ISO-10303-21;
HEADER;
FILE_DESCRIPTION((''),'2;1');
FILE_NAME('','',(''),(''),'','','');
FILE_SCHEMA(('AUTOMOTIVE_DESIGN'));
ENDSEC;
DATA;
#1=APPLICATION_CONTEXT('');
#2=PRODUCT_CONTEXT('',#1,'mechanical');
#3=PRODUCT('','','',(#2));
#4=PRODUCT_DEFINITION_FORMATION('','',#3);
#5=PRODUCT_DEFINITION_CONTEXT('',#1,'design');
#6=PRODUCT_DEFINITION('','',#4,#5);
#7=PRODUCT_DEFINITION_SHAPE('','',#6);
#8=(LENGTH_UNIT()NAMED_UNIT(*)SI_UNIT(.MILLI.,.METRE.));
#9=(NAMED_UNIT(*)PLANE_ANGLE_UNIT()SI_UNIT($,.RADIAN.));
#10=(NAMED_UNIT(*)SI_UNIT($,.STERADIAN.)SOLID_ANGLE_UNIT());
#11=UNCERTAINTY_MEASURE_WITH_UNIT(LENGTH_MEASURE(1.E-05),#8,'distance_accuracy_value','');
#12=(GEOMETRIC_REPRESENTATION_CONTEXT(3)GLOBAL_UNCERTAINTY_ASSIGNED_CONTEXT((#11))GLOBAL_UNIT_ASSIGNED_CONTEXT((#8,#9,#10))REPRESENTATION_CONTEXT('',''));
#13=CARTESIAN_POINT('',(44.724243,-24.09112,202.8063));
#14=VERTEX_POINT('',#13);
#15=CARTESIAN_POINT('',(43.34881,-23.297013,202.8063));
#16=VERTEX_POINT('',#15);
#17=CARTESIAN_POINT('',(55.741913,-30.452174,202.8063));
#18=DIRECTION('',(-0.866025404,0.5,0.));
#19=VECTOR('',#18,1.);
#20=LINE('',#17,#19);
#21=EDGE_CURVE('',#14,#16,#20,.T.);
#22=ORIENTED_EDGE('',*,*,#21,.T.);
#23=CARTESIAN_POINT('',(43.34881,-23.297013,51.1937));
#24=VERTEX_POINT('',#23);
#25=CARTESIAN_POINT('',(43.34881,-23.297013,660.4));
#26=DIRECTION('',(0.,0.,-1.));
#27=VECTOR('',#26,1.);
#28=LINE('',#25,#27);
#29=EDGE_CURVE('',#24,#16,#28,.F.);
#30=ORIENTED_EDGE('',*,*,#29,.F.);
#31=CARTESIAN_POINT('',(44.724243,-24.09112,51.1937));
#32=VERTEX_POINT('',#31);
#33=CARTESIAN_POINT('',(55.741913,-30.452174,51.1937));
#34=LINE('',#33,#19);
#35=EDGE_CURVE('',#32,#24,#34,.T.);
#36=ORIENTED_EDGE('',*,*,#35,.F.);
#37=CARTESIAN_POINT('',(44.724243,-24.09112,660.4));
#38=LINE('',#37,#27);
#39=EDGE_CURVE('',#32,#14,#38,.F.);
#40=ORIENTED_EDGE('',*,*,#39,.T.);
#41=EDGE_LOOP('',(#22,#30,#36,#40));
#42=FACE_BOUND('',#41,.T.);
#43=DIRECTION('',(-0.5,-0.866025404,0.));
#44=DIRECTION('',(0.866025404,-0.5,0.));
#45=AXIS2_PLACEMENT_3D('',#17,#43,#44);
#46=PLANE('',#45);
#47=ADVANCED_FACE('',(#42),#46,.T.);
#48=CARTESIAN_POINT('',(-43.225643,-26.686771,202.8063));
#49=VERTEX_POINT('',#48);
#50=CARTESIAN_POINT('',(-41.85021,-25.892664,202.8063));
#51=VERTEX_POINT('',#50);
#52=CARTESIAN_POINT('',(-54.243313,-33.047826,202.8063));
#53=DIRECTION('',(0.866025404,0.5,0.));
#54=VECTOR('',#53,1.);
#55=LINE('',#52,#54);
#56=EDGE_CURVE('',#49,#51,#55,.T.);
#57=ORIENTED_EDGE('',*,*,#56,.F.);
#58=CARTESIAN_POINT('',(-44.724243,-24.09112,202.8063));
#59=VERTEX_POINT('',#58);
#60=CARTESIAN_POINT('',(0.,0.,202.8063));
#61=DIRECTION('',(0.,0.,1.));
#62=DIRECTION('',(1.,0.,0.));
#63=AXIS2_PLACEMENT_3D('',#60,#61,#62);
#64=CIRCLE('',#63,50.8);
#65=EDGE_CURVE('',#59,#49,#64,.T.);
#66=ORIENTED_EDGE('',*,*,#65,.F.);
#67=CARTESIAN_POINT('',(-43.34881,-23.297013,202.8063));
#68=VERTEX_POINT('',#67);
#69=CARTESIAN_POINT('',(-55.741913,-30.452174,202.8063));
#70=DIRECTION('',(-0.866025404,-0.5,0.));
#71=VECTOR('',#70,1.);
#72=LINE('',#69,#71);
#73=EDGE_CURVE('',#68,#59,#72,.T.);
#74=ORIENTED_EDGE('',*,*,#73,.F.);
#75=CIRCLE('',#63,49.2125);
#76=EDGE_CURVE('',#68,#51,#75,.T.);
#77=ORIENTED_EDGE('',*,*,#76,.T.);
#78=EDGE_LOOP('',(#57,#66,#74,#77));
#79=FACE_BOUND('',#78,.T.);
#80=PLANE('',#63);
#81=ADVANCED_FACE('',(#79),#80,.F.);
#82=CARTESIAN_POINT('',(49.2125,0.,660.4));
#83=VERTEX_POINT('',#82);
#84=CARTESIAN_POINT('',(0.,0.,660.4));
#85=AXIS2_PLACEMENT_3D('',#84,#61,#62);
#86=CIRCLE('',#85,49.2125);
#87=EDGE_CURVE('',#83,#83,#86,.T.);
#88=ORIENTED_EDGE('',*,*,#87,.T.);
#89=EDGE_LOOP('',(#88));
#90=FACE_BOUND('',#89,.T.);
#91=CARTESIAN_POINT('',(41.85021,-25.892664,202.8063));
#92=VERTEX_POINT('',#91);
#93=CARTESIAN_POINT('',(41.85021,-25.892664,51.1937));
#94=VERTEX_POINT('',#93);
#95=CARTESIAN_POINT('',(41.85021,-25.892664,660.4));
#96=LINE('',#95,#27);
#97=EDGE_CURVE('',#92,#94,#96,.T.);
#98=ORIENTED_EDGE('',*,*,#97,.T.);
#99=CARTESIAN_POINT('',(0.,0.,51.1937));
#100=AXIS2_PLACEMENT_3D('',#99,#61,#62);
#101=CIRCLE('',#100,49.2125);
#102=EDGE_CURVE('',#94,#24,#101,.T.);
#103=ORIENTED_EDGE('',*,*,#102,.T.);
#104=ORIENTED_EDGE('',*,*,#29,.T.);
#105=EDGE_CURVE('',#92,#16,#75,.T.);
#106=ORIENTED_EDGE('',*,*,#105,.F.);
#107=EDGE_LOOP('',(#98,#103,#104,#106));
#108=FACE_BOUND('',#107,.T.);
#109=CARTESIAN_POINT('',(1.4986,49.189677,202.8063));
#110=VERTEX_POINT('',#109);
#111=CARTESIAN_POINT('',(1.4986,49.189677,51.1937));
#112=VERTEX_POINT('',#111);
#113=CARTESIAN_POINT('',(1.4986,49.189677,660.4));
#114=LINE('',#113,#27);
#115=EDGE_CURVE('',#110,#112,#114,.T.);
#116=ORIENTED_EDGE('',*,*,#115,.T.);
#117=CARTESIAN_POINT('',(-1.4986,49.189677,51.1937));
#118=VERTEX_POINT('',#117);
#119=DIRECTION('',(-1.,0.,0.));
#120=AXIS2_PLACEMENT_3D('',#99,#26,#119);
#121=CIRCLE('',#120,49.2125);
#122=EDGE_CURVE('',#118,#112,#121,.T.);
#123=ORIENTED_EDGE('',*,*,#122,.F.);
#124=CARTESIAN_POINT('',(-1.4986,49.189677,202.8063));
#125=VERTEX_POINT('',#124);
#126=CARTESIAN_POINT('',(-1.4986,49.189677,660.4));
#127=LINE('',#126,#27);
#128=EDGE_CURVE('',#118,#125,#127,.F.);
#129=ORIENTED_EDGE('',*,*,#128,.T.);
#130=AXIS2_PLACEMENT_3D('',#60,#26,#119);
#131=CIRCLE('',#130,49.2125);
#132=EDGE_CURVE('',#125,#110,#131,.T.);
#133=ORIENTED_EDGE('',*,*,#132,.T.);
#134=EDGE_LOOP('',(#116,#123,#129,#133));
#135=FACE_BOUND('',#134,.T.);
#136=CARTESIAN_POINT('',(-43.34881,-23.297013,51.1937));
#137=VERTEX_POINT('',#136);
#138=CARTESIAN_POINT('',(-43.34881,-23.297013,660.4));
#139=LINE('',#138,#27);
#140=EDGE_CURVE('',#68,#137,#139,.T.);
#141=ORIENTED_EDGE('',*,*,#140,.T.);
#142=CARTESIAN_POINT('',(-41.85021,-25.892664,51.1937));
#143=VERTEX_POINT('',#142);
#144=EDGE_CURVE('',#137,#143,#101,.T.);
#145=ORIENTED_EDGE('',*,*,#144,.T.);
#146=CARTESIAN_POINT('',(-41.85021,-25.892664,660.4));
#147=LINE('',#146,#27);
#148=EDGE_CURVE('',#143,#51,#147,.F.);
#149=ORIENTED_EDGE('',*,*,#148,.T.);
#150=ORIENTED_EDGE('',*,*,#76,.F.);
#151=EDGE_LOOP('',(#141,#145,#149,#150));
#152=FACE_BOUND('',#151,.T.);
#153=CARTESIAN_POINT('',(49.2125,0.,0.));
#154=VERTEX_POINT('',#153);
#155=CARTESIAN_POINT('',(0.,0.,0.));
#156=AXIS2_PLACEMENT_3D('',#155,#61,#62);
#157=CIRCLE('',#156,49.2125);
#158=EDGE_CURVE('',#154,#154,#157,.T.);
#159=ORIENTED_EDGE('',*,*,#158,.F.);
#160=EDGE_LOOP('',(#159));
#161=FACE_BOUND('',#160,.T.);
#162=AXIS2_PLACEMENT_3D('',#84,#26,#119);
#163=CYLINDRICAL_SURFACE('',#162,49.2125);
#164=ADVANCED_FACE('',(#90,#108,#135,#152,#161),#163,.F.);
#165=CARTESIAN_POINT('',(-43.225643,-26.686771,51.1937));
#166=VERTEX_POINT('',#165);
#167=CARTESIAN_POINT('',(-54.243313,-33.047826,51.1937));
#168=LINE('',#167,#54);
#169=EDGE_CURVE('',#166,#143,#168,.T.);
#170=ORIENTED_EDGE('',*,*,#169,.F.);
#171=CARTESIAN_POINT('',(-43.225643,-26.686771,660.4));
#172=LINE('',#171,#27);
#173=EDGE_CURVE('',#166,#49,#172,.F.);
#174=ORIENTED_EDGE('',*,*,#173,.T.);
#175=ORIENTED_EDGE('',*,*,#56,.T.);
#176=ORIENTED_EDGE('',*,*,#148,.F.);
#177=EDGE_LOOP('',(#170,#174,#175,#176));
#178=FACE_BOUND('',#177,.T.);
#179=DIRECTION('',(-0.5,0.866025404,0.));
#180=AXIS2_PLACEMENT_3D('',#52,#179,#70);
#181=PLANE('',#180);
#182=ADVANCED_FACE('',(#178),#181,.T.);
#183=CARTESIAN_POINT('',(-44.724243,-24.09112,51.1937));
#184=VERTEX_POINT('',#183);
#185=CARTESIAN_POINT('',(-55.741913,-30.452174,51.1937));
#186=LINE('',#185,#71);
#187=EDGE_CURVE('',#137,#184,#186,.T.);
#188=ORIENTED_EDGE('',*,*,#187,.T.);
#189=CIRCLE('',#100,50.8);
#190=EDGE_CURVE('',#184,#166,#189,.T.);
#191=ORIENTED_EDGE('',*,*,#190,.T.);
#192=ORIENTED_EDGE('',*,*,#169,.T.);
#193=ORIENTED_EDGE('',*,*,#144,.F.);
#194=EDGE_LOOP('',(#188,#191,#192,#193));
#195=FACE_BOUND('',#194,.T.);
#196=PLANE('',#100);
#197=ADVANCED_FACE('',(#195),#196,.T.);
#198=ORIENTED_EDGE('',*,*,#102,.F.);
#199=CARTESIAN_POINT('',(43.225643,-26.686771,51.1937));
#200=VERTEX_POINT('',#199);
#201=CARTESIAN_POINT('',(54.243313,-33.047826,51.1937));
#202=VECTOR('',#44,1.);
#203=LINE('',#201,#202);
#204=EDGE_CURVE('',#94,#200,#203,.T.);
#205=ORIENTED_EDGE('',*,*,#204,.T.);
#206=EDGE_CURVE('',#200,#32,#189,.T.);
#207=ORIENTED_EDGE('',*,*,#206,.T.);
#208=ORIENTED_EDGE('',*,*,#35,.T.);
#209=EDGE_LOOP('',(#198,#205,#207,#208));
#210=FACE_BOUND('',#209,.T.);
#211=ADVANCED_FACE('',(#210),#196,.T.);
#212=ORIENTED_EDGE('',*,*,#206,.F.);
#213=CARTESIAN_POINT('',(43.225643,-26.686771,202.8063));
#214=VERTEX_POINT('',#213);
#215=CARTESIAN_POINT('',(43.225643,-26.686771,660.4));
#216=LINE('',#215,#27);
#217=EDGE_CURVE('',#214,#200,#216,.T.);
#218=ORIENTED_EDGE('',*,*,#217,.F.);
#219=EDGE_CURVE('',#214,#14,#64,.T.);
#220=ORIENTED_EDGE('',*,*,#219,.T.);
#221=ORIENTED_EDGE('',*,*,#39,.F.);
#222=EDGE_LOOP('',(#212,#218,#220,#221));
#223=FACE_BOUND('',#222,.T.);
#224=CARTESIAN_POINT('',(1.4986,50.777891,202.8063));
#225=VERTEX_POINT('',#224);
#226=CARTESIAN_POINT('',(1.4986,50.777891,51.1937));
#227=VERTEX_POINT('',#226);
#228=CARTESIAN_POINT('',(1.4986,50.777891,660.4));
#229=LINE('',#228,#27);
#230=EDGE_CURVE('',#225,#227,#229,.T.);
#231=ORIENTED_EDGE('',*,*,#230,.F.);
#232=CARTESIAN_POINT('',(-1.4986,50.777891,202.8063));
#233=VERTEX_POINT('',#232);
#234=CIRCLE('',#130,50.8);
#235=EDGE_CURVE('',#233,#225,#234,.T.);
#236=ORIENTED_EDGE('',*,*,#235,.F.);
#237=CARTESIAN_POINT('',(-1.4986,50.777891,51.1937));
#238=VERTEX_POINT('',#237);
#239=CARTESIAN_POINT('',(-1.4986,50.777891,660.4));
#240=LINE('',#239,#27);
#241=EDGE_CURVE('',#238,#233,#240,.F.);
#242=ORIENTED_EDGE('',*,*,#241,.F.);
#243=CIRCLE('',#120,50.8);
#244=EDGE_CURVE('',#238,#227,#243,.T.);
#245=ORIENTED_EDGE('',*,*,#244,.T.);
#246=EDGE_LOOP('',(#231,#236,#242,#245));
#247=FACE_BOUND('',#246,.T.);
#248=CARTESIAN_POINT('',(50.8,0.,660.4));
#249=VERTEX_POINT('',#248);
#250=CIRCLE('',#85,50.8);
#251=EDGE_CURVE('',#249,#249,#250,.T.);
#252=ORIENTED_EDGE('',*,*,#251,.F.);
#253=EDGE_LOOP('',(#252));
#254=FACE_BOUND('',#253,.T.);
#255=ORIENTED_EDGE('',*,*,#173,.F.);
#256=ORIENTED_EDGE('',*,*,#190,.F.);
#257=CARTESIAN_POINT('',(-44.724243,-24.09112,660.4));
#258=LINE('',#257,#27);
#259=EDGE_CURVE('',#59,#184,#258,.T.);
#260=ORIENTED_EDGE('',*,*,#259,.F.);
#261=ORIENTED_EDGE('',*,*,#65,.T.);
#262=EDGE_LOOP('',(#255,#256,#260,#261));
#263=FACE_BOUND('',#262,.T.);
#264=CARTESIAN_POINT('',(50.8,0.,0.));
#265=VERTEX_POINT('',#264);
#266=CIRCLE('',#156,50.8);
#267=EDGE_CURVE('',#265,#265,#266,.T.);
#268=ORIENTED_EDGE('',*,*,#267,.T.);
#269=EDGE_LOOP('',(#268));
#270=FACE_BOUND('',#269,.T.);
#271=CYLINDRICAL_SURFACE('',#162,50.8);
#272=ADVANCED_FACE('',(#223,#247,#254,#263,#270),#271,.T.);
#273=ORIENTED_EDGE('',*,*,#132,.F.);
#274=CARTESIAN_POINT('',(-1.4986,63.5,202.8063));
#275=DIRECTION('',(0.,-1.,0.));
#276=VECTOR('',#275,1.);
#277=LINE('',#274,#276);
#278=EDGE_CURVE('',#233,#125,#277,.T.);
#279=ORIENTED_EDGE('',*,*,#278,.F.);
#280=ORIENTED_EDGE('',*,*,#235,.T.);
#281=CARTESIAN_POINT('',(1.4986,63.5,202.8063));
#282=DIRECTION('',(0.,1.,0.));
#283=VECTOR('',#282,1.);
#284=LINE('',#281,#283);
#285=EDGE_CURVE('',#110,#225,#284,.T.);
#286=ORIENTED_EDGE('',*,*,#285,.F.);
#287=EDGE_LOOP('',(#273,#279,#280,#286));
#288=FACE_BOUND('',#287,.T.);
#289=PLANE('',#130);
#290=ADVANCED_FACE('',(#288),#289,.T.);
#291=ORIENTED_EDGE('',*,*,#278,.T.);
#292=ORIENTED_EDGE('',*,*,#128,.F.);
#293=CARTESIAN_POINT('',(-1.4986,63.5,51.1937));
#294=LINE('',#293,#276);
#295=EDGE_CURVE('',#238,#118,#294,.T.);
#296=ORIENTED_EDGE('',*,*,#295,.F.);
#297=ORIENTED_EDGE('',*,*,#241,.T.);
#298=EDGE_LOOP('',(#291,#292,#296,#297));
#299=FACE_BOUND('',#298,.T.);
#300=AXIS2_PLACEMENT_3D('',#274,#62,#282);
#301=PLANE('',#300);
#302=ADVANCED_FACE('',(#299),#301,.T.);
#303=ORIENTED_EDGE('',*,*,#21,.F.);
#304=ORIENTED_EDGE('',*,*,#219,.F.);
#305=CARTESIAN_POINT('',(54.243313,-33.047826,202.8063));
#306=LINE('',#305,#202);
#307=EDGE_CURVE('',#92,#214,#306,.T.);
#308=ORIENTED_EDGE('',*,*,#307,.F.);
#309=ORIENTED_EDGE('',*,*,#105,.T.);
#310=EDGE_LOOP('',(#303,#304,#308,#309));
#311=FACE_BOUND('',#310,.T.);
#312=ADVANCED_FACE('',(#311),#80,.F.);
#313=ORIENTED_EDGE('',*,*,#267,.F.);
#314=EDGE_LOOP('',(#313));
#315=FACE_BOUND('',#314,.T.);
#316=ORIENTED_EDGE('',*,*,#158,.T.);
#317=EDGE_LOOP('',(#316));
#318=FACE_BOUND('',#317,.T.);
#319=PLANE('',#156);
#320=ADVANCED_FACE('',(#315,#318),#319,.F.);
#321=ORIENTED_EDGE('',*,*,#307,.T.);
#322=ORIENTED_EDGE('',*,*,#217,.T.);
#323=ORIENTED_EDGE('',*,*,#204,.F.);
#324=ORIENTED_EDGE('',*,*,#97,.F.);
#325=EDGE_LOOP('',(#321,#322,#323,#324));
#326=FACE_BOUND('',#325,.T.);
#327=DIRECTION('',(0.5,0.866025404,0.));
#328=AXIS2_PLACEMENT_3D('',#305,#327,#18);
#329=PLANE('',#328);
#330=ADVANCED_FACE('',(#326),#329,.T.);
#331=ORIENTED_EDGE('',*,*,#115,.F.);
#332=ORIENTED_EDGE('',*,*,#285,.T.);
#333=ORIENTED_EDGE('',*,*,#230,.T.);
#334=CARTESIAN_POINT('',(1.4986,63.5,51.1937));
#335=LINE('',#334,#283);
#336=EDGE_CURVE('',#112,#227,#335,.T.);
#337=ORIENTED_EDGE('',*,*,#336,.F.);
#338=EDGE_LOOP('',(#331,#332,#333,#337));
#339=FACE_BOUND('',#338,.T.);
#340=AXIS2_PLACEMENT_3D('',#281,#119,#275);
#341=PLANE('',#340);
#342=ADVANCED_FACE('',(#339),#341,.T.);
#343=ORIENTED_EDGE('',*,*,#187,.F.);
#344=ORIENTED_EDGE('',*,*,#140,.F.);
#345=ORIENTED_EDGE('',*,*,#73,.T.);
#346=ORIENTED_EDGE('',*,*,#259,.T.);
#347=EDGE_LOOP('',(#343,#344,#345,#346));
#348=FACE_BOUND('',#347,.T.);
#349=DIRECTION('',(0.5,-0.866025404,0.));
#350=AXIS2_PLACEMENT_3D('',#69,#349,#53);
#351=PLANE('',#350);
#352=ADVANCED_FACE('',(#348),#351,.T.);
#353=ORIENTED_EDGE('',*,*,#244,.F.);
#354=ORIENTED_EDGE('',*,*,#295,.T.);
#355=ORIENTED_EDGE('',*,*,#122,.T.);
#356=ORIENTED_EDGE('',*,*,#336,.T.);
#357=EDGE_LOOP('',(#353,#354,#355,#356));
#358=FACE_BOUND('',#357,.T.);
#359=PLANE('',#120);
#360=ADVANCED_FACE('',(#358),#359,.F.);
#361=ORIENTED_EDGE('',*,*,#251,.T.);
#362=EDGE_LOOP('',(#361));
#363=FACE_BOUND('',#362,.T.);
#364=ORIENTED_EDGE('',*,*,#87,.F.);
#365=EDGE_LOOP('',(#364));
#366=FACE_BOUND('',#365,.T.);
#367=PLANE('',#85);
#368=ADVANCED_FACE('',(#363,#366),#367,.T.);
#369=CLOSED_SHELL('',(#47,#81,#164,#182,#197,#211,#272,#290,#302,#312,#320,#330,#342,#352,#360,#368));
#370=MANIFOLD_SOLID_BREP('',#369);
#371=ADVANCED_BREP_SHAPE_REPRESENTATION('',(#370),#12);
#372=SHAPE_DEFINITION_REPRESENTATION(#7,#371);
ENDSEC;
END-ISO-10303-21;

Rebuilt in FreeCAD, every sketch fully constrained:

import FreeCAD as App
import Part
import Sketcher

V = App.Vector
Q = App.Units.Quantity


def add_polygon(sketch, points):
    """Adds a closed chain of lines whose ends are joined by coincident constraints."""
    first, n = sketch.GeometryCount, len(points)
    for a, b in zip(points, points[1:] + points[:1]):
        sketch.addGeometry(Part.LineSegment(App.Vector(*a, 0), App.Vector(*b, 0)), False)
    for i in range(n):
        sketch.addConstraint(Sketcher.Constraint("Coincident", first + i, 2, first + (i + 1) % n, 1))

doc = App.newDocument("Part")
body = doc.addObject("PartDesign::Body", "Body")

# Sketch on XY plane
sketch1 = body.newObject("Sketcher::SketchObject", "Sketch")
sketch1.AttachmentSupport = (doc.getObject("XY_Plane"), [""])
sketch1.MapMode = "FlatFace"
sketch1.addGeometry(Part.Circle(V(0, 0, 0), V(0, 0, 1), 51), False)
sketch1.addGeometry(Part.Circle(V(0, 0, 0), V(0, 0, 1), 49), False)
sketch1.addConstraint(Sketcher.Constraint("Coincident", 0, 3, -1, 1))
sketch1.addConstraint(Sketcher.Constraint("Coincident", 1, 3, -1, 1))
sketch1.addConstraint(Sketcher.Constraint("Diameter", 0, Q("4 in")))
sketch1.addConstraint(Sketcher.Constraint("Diameter", 1, Q("3.875 in")))
pad1 = body.newObject("PartDesign::Pad", "Pad")
pad1.Profile = sketch1
pad1.Length = Q("26 in")

# Sketch on XY plane
sketch2 = body.newObject("Sketcher::SketchObject", "Sketch001")
sketch2.AttachmentSupport = (doc.getObject("XY_Plane"), [""])
sketch2.MapMode = "FlatFace"
sketch2.AttachmentOffset = App.Placement(V(0, 0, 2.0155 * 25.4), App.Rotation())
add_polygon(sketch2, [(32.2, -20.3), (54.2, -33), (55.7, -30.5), (33.7, -17.8)])  # lines 0-3
add_polygon(sketch2, [(-1.5, 63.5), (-1.5, 38.1), (1.5, 38.1), (1.5, 63.5)])  # lines 4-7
add_polygon(sketch2, [(-33.7, -17.8), (-55.7, -30.5), (-54.2, -33), (-32.2, -20.3)])  # lines 8-11
sketch2.addConstraint(Sketcher.Constraint("Vertical", 4))
sketch2.addConstraint(Sketcher.Constraint("Horizontal", 5))
sketch2.addConstraint(Sketcher.Constraint("Vertical", 6))
sketch2.addConstraint(Sketcher.Constraint("Horizontal", 7))
sketch2.addConstraint(Sketcher.Constraint("Symmetric", 1, 2, 8, 2, -2))
sketch2.addConstraint(Sketcher.Constraint("Symmetric", 0, 2, 9, 2, -2))
sketch2.addConstraint(Sketcher.Constraint("Symmetric", 3, 2, 10, 2, -2))
sketch2.addConstraint(Sketcher.Constraint("Symmetric", 2, 2, 11, 2, -2))
sketch2.addConstraint(Sketcher.Constraint("Perpendicular", 0, 1))
sketch2.addConstraint(Sketcher.Constraint("Perpendicular", 1, 2))
sketch2.addConstraint(Sketcher.Constraint("Perpendicular", 2, 3))
sketch2.addConstraint(Sketcher.Constraint("DistanceY", 4, 2, 4, 1, Q("1 in")))
sketch2.addConstraint(Sketcher.Constraint("Distance", 0, Q("1 in")))
sketch2.addConstraint(Sketcher.Constraint("Angle", 0, Q("-30 deg")))
sketch2.addConstraint(Sketcher.Constraint("DistanceY", -1, 1, 4, 2, Q("1.5 in")))
sketch2.addConstraint(Sketcher.Constraint("DistanceX", 5, 1, 5, 2, Q("0.118 in")))
sketch2.addConstraint(Sketcher.Constraint("Distance", 1, Q("0.118 in")))
sketch2.addConstraint(Sketcher.Constraint("DistanceX", 4, 2, -1, 1, Q("0.059 in")))
sketch2.addConstraint(Sketcher.Constraint("DistanceX", 8, 2, 3, 2, Q("87.988181 mm")))
sketch2.addConstraint(Sketcher.Constraint("DistanceY", 0, 2, -1, 1, Q("33.047826 mm")))
pocket1 = body.newObject("PartDesign::Pocket", "Pocket")
pocket1.Profile = sketch2
pocket1.Length = Q("5.969 in")
pocket1.Reversed = True

doc.recompute()
